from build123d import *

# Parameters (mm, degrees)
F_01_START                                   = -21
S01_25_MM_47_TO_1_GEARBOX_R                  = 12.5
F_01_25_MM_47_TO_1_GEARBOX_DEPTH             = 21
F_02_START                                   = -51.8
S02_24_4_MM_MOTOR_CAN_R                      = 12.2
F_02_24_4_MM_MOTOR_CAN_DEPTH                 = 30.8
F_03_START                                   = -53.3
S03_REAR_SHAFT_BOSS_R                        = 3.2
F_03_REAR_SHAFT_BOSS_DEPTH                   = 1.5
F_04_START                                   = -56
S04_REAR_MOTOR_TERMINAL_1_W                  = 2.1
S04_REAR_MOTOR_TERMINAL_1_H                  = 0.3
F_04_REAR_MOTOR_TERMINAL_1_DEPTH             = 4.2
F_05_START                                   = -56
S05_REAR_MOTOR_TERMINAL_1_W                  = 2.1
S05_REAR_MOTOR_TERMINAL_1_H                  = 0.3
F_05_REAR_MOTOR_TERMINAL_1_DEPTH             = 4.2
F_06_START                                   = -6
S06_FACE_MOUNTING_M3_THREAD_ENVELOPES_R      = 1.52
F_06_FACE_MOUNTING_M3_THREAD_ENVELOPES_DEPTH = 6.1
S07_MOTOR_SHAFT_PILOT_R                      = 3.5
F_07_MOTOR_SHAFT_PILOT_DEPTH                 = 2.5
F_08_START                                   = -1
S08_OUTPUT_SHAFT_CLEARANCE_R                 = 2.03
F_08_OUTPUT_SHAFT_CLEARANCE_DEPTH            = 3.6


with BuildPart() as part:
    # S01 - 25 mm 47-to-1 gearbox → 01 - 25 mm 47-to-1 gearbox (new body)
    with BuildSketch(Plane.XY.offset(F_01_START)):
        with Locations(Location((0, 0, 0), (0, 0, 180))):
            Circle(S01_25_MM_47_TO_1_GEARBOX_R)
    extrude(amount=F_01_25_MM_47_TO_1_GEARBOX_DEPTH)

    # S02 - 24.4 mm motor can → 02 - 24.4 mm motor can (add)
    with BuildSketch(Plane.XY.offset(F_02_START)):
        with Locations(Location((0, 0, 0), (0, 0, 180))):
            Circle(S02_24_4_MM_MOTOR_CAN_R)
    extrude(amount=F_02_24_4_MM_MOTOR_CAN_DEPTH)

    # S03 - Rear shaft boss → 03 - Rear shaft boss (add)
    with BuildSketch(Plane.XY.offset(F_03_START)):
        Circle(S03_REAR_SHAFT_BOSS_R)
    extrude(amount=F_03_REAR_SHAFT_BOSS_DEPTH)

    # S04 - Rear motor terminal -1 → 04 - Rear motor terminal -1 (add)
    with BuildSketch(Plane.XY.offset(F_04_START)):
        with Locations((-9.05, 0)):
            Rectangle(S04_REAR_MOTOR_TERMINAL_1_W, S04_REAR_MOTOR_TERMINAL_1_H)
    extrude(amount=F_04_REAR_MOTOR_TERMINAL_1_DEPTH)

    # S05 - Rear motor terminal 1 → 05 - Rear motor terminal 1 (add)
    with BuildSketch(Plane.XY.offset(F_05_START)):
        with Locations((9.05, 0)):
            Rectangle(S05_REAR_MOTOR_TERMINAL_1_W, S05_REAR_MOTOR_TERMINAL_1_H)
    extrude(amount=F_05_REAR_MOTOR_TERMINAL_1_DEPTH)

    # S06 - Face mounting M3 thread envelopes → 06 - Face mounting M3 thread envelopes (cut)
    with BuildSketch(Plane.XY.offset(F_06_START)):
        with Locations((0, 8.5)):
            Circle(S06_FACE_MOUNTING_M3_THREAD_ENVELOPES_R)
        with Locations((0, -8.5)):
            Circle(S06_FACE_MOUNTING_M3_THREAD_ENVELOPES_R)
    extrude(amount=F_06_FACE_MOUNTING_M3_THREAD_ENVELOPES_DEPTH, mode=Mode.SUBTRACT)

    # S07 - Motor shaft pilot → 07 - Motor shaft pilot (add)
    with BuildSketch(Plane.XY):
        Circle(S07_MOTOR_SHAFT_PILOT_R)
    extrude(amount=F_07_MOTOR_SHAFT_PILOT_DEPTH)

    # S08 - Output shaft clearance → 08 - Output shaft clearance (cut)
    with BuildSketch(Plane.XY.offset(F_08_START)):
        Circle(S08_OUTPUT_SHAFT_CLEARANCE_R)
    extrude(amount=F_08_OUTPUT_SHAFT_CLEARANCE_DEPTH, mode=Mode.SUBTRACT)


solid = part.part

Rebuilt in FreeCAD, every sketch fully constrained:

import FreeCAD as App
import Part
import Sketcher
from FreeCAD import Vector

doc = App.newDocument("Part")
body = doc.addObject("PartDesign::Body", "Body")

sketch1 = body.newObject("Sketcher::SketchObject", "Sketch")
sketch1.AttachmentSupport = (doc.getObject("XY_Plane"), [""])
sketch1.MapMode = "FlatFace"
sketch1.AttachmentOffset = App.Placement(Vector(0, 0, -21), App.Rotation())
sketch1.addGeometry(Part.Circle(Vector(0, 0, 0), Vector(0, 0, 1), 12.5), False)
sketch1.addConstraint([
    Sketcher.Constraint("Coincident", 0, 3, -1, 1),
    Sketcher.Constraint("Diameter", 0, 25.0),
])
pad1 = body.newObject("PartDesign::Pad", "Pad")
pad1.Profile = sketch1
pad1.Length = 21

sketch2 = body.newObject("Sketcher::SketchObject", "Sketch001")
sketch2.AttachmentSupport = (doc.getObject("XY_Plane"), [""])
sketch2.MapMode = "FlatFace"
sketch2.AttachmentOffset = App.Placement(Vector(0, 0, -51.8), App.Rotation())
sketch2.addGeometry(Part.Circle(Vector(0, 0, 0), Vector(0, 0, 1), 12.2), False)
sketch2.addConstraint([
    Sketcher.Constraint("Coincident", 0, 3, -1, 1),
    Sketcher.Constraint("Diameter", 0, 24.4),
])
pad2 = body.newObject("PartDesign::Pad", "Pad001")
pad2.Profile = sketch2
pad2.Length = 30.8

sketch3 = body.newObject("Sketcher::SketchObject", "Sketch002")
sketch3.AttachmentSupport = (doc.getObject("XY_Plane"), [""])
sketch3.MapMode = "FlatFace"
sketch3.AttachmentOffset = App.Placement(Vector(0, 0, -53.3), App.Rotation())
sketch3.addGeometry(Part.Circle(Vector(0, 0, 0), Vector(0, 0, 1), 3.2), False)
sketch3.addConstraint([
    Sketcher.Constraint("Coincident", 0, 3, -1, 1),
    Sketcher.Constraint("Diameter", 0, 6.4),
])
pad3 = body.newObject("PartDesign::Pad", "Pad002")
pad3.Profile = sketch3
pad3.Length = 1.5

sketch4 = body.newObject("Sketcher::SketchObject", "Sketch003")
sketch4.AttachmentSupport = (doc.getObject("XY_Plane"), [""])
sketch4.MapMode = "FlatFace"
sketch4.AttachmentOffset = App.Placement(Vector(0, 0, -56), App.Rotation())
sketch4.addGeometry([
    Part.LineSegment(Vector(-10.1, 0.15, 0), Vector(-10.1, -0.15, 0)),
    Part.LineSegment(Vector(-10.1, -0.15, 0), Vector(-8, -0.15, 0)),
    Part.LineSegment(Vector(-8, -0.15, 0), Vector(-8, 0.15, 0)),
    Part.LineSegment(Vector(-8, 0.15, 0), Vector(-10.1, 0.15, 0)),
], False)
sketch4.addConstraint([
    Sketcher.Constraint("Coincident", 0, 2, 1, 1),
    Sketcher.Constraint("Coincident", 1, 2, 2, 1),
    Sketcher.Constraint("Coincident", 2, 2, 3, 1),
    Sketcher.Constraint("Coincident", 3, 2, 0, 1),
    Sketcher.Constraint("Vertical", 0),
    Sketcher.Constraint("Horizontal", 1),
    Sketcher.Constraint("Vertical", 2),
    Sketcher.Constraint("Horizontal", 3),
    Sketcher.Constraint("DistanceX", 1, 1, 1, 2, 2.1),
    Sketcher.Constraint("DistanceY", 0, 2, 0, 1, 0.3),
    Sketcher.Constraint("DistanceX", 1, 2, -1, 1, 8.0),
    Sketcher.Constraint("DistanceY", 0, 2, -1, 1, 0.15),
])
pad4 = body.newObject("PartDesign::Pad", "Pad003")
pad4.Profile = sketch4
pad4.Length = 4.2

sketch5 = body.newObject("Sketcher::SketchObject", "Sketch004")
sketch5.AttachmentSupport = (doc.getObject("XY_Plane"), [""])
sketch5.MapMode = "FlatFace"
sketch5.AttachmentOffset = App.Placement(Vector(0, 0, -56), App.Rotation())
sketch5.addGeometry([
    Part.LineSegment(Vector(8, 0.15, 0), Vector(8, -0.15, 0)),
    Part.LineSegment(Vector(8, -0.15, 0), Vector(10.1, -0.15, 0)),
    Part.LineSegment(Vector(10.1, -0.15, 0), Vector(10.1, 0.15, 0)),
    Part.LineSegment(Vector(10.1, 0.15, 0), Vector(8, 0.15, 0)),
], False)
sketch5.addConstraint([
    Sketcher.Constraint("Coincident", 0, 2, 1, 1),
    Sketcher.Constraint("Coincident", 1, 2, 2, 1),
    Sketcher.Constraint("Coincident", 2, 2, 3, 1),
    Sketcher.Constraint("Coincident", 3, 2, 0, 1),
    Sketcher.Constraint("Vertical", 0),
    Sketcher.Constraint("Horizontal", 1),
    Sketcher.Constraint("Vertical", 2),
    Sketcher.Constraint("Horizontal", 3),
    Sketcher.Constraint("DistanceX", 1, 1, 1, 2, 2.1),
    Sketcher.Constraint("DistanceY", 0, 2, 0, 1, 0.3),
    Sketcher.Constraint("DistanceX", -1, 1, 0, 2, 8.0),
    Sketcher.Constraint("DistanceY", 0, 2, -1, 1, 0.15),
])
pad5 = body.newObject("PartDesign::Pad", "Pad004")
pad5.Profile = sketch5
pad5.Length = 4.2

sketch6 = body.newObject("Sketcher::SketchObject", "Sketch005")
sketch6.AttachmentSupport = (doc.getObject("XY_Plane"), [""])
sketch6.MapMode = "FlatFace"
sketch6.AttachmentOffset = App.Placement(Vector(0, 0, -6), App.Rotation())
sketch6.addGeometry([
    Part.Circle(Vector(0, 8.5, 0), Vector(0, 0, 1), 1.52),
    Part.Circle(Vector(0, -8.5, 0), Vector(0, 0, 1), 1.52),
], False)
sketch6.addConstraint([
    Sketcher.Constraint("Equal", 0, 1),
    Sketcher.Constraint("Symmetric", 0, 3, 1, 3, -1, 1),
    Sketcher.Constraint("PointOnObject", 0, 3, -2),
    Sketcher.Constraint("Diameter", 0, 3.04),
    Sketcher.Constraint("DistanceY", 1, 3, 0, 3, 17.0),
])
pocket1 = body.newObject("PartDesign::Pocket", "Pocket")
pocket1.Profile = sketch6
pocket1.Length = 6.1
pocket1.Reversed = True

sketch7 = body.newObject("Sketcher::SketchObject", "Sketch006")
sketch7.AttachmentSupport = (doc.getObject("XY_Plane"), [""])
sketch7.MapMode = "FlatFace"
sketch7.addGeometry(Part.Circle(Vector(0, 0, 0), Vector(0, 0, 1), 3.5), False)
sketch7.addConstraint([
    Sketcher.Constraint("Coincident", 0, 3, -1, 1),
    Sketcher.Constraint("Diameter", 0, 7.0),
])
pad6 = body.newObject("PartDesign::Pad", "Pad005")
pad6.Profile = sketch7
pad6.Length = 2.5

sketch8 = body.newObject("Sketcher::SketchObject", "Sketch007")
sketch8.AttachmentSupport = (doc.getObject("XY_Plane"), [""])
sketch8.MapMode = "FlatFace"
sketch8.AttachmentOffset = App.Placement(Vector(0, 0, -1), App.Rotation())
sketch8.addGeometry(Part.Circle(Vector(0, 0, 0), Vector(0, 0, 1), 2.03), False)
sketch8.addConstraint([
    Sketcher.Constraint("Coincident", 0, 3, -1, 1),
    Sketcher.Constraint("Diameter", 0, 4.06),
])
pocket2 = body.newObject("PartDesign::Pocket", "Pocket001")
pocket2.Profile = sketch8
pocket2.Length = 3.6
pocket2.Reversed = True

doc.recompute()
